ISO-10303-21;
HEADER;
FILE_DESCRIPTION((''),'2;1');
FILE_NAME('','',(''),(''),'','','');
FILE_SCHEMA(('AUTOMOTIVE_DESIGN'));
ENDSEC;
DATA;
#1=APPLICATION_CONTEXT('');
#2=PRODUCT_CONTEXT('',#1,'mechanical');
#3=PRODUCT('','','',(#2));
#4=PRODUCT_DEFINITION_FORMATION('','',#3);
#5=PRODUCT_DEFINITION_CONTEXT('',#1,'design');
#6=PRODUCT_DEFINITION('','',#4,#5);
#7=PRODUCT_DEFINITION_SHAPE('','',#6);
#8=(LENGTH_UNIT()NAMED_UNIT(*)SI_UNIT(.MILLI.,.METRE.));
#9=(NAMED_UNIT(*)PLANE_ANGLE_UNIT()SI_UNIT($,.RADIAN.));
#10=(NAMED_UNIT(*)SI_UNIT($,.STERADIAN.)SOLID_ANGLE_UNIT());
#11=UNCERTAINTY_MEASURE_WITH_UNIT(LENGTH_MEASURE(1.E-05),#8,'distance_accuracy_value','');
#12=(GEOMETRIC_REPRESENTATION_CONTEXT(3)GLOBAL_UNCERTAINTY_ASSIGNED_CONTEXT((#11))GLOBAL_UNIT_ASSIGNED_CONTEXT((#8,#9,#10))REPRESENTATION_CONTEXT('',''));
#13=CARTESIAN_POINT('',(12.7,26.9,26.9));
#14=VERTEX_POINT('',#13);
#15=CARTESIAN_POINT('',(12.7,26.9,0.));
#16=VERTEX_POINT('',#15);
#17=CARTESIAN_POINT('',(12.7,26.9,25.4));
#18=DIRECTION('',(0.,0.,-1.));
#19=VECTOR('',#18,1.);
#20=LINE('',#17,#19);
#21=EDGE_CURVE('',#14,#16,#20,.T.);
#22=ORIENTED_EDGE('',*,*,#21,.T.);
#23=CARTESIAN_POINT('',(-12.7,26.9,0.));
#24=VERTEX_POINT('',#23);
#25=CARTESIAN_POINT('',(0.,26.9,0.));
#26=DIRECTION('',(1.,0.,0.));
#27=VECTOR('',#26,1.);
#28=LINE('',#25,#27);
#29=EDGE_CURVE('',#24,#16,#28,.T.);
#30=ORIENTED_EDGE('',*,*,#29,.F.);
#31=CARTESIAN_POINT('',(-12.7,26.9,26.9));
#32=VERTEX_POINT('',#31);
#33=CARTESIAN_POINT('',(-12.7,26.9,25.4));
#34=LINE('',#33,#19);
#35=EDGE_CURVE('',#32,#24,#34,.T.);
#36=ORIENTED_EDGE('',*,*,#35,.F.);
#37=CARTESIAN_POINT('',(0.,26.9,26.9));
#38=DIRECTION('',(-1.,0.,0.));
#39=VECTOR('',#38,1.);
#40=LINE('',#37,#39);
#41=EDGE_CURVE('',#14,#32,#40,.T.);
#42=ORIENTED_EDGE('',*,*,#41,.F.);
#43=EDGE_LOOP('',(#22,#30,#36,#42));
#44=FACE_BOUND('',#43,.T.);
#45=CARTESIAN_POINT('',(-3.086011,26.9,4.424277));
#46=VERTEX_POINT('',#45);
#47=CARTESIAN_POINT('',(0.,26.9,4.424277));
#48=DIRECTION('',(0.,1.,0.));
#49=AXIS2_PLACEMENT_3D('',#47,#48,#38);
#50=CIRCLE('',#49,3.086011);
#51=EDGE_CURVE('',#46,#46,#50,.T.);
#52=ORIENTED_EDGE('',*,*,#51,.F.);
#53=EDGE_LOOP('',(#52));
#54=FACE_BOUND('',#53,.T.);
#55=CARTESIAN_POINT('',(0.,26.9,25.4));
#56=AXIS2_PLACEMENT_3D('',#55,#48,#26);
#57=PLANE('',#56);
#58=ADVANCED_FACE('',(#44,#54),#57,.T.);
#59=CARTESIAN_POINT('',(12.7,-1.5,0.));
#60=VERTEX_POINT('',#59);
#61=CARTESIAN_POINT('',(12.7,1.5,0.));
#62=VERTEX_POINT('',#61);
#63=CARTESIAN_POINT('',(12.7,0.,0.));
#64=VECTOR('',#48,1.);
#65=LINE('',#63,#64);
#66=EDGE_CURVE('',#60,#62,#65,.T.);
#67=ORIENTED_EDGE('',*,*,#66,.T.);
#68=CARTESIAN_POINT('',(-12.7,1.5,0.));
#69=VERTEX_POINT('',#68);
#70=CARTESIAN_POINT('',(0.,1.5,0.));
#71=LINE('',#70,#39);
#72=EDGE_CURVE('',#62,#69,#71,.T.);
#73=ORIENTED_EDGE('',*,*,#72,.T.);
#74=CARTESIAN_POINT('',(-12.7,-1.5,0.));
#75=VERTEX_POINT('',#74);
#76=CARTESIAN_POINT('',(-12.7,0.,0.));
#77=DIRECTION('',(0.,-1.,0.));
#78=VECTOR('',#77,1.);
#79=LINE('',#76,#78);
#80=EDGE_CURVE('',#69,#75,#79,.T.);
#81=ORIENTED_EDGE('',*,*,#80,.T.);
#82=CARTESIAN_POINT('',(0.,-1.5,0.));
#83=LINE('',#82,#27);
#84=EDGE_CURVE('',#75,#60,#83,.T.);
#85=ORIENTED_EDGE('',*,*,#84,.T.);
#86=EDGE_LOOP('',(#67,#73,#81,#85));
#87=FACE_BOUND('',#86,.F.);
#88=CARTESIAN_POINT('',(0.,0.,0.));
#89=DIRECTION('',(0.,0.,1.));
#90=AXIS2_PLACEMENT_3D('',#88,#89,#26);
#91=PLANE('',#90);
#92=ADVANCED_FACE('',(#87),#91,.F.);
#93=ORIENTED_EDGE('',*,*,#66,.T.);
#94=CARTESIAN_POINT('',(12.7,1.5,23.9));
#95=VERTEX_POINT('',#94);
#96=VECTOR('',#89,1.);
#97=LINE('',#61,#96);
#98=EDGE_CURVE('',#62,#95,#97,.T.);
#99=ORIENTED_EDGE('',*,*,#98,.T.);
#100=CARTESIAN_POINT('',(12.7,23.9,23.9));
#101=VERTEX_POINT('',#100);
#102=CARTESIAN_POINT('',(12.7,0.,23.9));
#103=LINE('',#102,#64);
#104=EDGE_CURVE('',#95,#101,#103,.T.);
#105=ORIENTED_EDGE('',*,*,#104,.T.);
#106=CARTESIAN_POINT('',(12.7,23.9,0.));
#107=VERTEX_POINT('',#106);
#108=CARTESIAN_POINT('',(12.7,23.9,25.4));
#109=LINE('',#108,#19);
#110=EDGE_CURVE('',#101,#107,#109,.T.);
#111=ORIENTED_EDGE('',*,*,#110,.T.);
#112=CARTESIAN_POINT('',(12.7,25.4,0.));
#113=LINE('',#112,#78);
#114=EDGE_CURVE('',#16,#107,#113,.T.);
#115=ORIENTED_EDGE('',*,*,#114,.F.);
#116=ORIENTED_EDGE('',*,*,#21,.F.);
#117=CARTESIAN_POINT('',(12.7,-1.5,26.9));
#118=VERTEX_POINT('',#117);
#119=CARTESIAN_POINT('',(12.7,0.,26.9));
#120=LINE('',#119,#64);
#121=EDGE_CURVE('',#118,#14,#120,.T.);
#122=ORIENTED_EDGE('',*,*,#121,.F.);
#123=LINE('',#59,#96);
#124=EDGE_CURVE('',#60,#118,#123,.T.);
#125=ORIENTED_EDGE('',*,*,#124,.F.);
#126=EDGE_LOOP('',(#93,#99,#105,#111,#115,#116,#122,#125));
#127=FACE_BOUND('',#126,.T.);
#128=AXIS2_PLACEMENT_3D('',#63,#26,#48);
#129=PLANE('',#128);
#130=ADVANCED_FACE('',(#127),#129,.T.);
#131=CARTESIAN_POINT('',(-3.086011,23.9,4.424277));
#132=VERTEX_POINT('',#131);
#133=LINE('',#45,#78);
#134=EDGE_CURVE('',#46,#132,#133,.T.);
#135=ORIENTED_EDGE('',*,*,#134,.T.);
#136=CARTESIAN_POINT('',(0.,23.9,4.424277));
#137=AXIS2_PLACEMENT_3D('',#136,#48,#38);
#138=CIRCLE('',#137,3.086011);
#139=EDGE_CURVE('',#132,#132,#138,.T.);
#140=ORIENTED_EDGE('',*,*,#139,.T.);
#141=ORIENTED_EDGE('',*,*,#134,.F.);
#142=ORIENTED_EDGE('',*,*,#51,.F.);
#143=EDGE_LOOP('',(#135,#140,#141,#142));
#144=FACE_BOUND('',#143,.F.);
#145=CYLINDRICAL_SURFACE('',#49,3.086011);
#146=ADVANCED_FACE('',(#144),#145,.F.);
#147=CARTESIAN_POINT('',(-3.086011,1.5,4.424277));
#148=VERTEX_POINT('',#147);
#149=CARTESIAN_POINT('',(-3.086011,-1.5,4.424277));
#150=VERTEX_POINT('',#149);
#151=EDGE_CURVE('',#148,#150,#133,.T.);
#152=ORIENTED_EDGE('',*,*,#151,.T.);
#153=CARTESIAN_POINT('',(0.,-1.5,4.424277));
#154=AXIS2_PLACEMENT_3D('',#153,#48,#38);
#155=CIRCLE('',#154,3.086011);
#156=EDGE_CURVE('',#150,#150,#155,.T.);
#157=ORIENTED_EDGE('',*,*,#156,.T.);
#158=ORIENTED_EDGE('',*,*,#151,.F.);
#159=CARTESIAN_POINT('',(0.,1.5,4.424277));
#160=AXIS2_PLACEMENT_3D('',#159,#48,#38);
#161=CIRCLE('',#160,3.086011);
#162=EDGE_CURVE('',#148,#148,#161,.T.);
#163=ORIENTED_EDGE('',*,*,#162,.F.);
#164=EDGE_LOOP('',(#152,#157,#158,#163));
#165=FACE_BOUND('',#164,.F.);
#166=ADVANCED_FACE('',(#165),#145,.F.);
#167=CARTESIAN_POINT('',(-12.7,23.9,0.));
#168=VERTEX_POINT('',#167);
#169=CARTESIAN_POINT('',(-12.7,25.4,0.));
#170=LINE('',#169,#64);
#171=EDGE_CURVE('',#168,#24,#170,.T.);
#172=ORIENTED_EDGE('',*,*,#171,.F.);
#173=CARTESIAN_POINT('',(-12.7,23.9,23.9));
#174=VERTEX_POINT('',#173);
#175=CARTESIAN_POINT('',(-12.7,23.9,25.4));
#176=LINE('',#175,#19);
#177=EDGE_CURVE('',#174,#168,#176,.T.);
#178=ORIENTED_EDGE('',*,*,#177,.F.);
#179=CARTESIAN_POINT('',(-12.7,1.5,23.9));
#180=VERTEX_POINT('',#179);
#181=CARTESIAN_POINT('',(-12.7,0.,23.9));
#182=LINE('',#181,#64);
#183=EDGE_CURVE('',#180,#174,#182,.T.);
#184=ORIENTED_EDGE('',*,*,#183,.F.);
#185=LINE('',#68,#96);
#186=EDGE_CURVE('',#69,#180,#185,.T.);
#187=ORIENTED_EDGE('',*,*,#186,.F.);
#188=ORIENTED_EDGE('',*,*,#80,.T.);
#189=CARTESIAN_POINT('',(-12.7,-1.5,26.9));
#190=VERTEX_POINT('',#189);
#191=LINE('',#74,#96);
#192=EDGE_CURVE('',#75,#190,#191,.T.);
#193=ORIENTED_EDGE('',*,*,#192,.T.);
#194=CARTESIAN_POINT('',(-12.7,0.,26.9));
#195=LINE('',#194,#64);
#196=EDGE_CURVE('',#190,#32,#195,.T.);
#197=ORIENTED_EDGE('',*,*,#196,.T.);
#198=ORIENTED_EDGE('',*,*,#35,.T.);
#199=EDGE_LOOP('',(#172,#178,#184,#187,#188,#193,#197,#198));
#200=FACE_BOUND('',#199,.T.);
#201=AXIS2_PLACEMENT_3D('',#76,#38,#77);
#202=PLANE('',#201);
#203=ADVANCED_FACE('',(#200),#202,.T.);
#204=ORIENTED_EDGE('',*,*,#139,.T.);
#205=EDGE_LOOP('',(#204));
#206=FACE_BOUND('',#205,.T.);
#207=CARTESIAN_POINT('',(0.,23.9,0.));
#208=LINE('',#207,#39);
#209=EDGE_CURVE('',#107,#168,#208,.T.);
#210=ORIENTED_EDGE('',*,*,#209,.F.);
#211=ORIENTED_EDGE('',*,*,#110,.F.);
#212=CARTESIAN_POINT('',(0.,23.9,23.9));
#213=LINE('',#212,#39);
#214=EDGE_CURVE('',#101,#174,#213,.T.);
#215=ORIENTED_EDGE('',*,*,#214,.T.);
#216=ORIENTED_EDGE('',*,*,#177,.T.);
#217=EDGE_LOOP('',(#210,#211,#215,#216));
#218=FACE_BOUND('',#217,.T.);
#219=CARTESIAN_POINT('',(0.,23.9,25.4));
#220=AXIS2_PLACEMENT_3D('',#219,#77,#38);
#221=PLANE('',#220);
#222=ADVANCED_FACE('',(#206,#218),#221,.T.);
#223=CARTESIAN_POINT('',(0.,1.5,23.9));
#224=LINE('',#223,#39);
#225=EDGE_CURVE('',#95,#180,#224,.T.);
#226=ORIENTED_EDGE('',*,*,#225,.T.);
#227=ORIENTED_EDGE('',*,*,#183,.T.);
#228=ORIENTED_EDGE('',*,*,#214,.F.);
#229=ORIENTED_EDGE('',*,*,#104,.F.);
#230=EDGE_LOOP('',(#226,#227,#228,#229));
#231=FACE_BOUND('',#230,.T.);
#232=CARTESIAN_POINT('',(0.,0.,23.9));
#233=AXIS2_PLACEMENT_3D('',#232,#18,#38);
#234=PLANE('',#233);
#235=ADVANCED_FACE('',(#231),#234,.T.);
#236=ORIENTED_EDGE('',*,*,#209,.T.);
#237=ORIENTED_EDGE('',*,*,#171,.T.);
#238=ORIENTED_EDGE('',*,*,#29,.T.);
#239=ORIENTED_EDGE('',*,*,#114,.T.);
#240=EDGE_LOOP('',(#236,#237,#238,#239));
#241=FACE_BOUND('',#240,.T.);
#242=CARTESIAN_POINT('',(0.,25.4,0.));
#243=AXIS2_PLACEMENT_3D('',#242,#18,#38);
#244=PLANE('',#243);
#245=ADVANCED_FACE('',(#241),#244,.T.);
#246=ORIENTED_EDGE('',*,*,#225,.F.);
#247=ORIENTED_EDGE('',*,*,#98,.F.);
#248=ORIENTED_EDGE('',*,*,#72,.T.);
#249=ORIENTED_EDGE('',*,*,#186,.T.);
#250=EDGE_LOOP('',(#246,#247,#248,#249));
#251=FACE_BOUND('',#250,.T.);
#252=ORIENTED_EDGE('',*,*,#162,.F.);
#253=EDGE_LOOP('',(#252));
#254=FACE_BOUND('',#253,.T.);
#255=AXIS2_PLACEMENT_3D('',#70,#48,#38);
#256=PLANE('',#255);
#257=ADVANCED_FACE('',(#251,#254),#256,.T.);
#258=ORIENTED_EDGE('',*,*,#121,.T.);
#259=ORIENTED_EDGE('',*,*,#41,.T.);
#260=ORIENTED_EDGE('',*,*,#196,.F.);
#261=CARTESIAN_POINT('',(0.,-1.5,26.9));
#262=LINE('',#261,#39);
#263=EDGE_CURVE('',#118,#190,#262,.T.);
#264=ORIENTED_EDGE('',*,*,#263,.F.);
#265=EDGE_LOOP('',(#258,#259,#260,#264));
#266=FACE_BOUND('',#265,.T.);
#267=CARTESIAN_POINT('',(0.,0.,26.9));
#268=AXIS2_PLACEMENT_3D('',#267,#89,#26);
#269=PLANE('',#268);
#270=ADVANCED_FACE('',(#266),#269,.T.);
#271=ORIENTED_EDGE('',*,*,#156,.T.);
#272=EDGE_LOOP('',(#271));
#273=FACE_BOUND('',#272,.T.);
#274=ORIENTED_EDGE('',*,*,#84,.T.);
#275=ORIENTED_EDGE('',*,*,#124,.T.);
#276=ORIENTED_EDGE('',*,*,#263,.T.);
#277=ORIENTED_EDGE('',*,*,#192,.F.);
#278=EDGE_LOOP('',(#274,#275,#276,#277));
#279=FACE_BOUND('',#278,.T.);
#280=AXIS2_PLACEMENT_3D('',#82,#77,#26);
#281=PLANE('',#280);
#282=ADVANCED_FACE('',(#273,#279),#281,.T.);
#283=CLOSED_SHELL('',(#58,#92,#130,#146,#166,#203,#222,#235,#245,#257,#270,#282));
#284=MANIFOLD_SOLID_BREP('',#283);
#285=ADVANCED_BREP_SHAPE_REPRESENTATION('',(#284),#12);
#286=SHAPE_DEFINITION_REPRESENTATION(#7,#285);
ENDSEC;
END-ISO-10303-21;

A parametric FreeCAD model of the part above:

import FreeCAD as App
import Part
import Sketcher

V = App.Vector
Q = App.Units.Quantity

doc = App.newDocument("Part")
body = doc.addObject("PartDesign::Body", "Body")

sketch1 = body.newObject("Sketcher::SketchObject", "Sketch")
sketch1.AttachmentSupport = (doc.getObject("XY_Plane"), [""])
sketch1.MapMode = "FlatFace"
sketch1.addGeometry([
    Part.LineSegment(V(-12.7, 1.5, 0), V(-12.7, -1.5, 0)),
    Part.LineSegment(V(-12.7, -1.5, 0), V(12.7, -1.5, 0)),
    Part.LineSegment(V(12.7, -1.5, 0), V(12.7, 1.5, 0)),
    Part.LineSegment(V(12.7, 1.5, 0), V(-12.7, 1.5, 0)),
], False)
sketch1.addConstraint([
    Sketcher.Constraint("Coincident", 0, 2, 1, 1),
    Sketcher.Constraint("Coincident", 1, 2, 2, 1),
    Sketcher.Constraint("Coincident", 2, 2, 3, 1),
    Sketcher.Constraint("Coincident", 3, 2, 0, 1),
    Sketcher.Constraint("Vertical", 0),
    Sketcher.Constraint("Horizontal", 1),
    Sketcher.Constraint("Vertical", 2),
    Sketcher.Constraint("Horizontal", 3),
    Sketcher.Constraint("Symmetric", 0, 2, 2, 2, -1, 1),
    Sketcher.Constraint("DistanceY", 0, 2, 0, 1, Q("3 mm")),
    Sketcher.Constraint("DistanceX", 1, 1, 1, 2, Q("25.4 mm")),
])

sketch2 = body.newObject("Sketcher::SketchObject", "Sketch001")
sketch2.AttachmentSupport = (doc.getObject("YZ_Plane"), [""])
sketch2.MapMode = "FlatFace"
sketch2.addGeometry([
    Part.LineSegment(V(0, 0, 0), V(0, 25, 0)),
    Part.LineSegment(V(0, 25, 0), V(25, 25, 0)),
    Part.LineSegment(V(25, 25, 0), V(25, 0, 0)),
], False)
sketch2.addConstraint([
    Sketcher.Constraint("Coincident", 0, 2, 1, 1),
    Sketcher.Constraint("Coincident", 1, 2, 2, 1),
    Sketcher.Constraint("Vertical", 0),
    Sketcher.Constraint("Horizontal", 1),
    Sketcher.Constraint("Vertical", 2),
    Sketcher.Constraint("Coincident", 0, 1, -1, 1),
    Sketcher.Constraint("PointOnObject", 2, 2, -1),
    Sketcher.Constraint("Equal", 1, 0),
    Sketcher.Constraint("DistanceX", 1, 1, 1, 2, Q("25.4 mm")),
])
doc.recompute()

additivepipe = body.newObject("PartDesign::AdditivePipe", "AdditivePipe")
additivepipe.Profile = sketch1
additivepipe.Spine = (sketch2, ["Edge1", "Edge2", "Edge3"])
additivepipe.Transition = "Right corner"

sketch3 = body.newObject("Sketcher::SketchObject", "Sketch002")
sketch3.AttachmentSupport = (doc.getObject("XZ_Plane"), [""])
sketch3.MapMode = "FlatFace"
sketch3.AttachmentOffset = App.Placement(V(0, 0, -26.9), App.Rotation())
sketch3.addGeometry(Part.Circle(V(0, 4.4, 0), V(0, 0, 1), 3.1), False)
sketch3.addConstraint([
    Sketcher.Constraint("PointOnObject", 0, 3, -2),
    Sketcher.Constraint("Diameter", 0, Q("6.172023 mm")),
    Sketcher.Constraint("DistanceY", -1, 1, 0, 3, Q("4.424277 mm")),
])
pocket1 = body.newObject("PartDesign::Pocket", "Pocket")
pocket1.Profile = sketch3
pocket1.Length = 48.381587
pocket1.Reversed = True

doc.recompute()
